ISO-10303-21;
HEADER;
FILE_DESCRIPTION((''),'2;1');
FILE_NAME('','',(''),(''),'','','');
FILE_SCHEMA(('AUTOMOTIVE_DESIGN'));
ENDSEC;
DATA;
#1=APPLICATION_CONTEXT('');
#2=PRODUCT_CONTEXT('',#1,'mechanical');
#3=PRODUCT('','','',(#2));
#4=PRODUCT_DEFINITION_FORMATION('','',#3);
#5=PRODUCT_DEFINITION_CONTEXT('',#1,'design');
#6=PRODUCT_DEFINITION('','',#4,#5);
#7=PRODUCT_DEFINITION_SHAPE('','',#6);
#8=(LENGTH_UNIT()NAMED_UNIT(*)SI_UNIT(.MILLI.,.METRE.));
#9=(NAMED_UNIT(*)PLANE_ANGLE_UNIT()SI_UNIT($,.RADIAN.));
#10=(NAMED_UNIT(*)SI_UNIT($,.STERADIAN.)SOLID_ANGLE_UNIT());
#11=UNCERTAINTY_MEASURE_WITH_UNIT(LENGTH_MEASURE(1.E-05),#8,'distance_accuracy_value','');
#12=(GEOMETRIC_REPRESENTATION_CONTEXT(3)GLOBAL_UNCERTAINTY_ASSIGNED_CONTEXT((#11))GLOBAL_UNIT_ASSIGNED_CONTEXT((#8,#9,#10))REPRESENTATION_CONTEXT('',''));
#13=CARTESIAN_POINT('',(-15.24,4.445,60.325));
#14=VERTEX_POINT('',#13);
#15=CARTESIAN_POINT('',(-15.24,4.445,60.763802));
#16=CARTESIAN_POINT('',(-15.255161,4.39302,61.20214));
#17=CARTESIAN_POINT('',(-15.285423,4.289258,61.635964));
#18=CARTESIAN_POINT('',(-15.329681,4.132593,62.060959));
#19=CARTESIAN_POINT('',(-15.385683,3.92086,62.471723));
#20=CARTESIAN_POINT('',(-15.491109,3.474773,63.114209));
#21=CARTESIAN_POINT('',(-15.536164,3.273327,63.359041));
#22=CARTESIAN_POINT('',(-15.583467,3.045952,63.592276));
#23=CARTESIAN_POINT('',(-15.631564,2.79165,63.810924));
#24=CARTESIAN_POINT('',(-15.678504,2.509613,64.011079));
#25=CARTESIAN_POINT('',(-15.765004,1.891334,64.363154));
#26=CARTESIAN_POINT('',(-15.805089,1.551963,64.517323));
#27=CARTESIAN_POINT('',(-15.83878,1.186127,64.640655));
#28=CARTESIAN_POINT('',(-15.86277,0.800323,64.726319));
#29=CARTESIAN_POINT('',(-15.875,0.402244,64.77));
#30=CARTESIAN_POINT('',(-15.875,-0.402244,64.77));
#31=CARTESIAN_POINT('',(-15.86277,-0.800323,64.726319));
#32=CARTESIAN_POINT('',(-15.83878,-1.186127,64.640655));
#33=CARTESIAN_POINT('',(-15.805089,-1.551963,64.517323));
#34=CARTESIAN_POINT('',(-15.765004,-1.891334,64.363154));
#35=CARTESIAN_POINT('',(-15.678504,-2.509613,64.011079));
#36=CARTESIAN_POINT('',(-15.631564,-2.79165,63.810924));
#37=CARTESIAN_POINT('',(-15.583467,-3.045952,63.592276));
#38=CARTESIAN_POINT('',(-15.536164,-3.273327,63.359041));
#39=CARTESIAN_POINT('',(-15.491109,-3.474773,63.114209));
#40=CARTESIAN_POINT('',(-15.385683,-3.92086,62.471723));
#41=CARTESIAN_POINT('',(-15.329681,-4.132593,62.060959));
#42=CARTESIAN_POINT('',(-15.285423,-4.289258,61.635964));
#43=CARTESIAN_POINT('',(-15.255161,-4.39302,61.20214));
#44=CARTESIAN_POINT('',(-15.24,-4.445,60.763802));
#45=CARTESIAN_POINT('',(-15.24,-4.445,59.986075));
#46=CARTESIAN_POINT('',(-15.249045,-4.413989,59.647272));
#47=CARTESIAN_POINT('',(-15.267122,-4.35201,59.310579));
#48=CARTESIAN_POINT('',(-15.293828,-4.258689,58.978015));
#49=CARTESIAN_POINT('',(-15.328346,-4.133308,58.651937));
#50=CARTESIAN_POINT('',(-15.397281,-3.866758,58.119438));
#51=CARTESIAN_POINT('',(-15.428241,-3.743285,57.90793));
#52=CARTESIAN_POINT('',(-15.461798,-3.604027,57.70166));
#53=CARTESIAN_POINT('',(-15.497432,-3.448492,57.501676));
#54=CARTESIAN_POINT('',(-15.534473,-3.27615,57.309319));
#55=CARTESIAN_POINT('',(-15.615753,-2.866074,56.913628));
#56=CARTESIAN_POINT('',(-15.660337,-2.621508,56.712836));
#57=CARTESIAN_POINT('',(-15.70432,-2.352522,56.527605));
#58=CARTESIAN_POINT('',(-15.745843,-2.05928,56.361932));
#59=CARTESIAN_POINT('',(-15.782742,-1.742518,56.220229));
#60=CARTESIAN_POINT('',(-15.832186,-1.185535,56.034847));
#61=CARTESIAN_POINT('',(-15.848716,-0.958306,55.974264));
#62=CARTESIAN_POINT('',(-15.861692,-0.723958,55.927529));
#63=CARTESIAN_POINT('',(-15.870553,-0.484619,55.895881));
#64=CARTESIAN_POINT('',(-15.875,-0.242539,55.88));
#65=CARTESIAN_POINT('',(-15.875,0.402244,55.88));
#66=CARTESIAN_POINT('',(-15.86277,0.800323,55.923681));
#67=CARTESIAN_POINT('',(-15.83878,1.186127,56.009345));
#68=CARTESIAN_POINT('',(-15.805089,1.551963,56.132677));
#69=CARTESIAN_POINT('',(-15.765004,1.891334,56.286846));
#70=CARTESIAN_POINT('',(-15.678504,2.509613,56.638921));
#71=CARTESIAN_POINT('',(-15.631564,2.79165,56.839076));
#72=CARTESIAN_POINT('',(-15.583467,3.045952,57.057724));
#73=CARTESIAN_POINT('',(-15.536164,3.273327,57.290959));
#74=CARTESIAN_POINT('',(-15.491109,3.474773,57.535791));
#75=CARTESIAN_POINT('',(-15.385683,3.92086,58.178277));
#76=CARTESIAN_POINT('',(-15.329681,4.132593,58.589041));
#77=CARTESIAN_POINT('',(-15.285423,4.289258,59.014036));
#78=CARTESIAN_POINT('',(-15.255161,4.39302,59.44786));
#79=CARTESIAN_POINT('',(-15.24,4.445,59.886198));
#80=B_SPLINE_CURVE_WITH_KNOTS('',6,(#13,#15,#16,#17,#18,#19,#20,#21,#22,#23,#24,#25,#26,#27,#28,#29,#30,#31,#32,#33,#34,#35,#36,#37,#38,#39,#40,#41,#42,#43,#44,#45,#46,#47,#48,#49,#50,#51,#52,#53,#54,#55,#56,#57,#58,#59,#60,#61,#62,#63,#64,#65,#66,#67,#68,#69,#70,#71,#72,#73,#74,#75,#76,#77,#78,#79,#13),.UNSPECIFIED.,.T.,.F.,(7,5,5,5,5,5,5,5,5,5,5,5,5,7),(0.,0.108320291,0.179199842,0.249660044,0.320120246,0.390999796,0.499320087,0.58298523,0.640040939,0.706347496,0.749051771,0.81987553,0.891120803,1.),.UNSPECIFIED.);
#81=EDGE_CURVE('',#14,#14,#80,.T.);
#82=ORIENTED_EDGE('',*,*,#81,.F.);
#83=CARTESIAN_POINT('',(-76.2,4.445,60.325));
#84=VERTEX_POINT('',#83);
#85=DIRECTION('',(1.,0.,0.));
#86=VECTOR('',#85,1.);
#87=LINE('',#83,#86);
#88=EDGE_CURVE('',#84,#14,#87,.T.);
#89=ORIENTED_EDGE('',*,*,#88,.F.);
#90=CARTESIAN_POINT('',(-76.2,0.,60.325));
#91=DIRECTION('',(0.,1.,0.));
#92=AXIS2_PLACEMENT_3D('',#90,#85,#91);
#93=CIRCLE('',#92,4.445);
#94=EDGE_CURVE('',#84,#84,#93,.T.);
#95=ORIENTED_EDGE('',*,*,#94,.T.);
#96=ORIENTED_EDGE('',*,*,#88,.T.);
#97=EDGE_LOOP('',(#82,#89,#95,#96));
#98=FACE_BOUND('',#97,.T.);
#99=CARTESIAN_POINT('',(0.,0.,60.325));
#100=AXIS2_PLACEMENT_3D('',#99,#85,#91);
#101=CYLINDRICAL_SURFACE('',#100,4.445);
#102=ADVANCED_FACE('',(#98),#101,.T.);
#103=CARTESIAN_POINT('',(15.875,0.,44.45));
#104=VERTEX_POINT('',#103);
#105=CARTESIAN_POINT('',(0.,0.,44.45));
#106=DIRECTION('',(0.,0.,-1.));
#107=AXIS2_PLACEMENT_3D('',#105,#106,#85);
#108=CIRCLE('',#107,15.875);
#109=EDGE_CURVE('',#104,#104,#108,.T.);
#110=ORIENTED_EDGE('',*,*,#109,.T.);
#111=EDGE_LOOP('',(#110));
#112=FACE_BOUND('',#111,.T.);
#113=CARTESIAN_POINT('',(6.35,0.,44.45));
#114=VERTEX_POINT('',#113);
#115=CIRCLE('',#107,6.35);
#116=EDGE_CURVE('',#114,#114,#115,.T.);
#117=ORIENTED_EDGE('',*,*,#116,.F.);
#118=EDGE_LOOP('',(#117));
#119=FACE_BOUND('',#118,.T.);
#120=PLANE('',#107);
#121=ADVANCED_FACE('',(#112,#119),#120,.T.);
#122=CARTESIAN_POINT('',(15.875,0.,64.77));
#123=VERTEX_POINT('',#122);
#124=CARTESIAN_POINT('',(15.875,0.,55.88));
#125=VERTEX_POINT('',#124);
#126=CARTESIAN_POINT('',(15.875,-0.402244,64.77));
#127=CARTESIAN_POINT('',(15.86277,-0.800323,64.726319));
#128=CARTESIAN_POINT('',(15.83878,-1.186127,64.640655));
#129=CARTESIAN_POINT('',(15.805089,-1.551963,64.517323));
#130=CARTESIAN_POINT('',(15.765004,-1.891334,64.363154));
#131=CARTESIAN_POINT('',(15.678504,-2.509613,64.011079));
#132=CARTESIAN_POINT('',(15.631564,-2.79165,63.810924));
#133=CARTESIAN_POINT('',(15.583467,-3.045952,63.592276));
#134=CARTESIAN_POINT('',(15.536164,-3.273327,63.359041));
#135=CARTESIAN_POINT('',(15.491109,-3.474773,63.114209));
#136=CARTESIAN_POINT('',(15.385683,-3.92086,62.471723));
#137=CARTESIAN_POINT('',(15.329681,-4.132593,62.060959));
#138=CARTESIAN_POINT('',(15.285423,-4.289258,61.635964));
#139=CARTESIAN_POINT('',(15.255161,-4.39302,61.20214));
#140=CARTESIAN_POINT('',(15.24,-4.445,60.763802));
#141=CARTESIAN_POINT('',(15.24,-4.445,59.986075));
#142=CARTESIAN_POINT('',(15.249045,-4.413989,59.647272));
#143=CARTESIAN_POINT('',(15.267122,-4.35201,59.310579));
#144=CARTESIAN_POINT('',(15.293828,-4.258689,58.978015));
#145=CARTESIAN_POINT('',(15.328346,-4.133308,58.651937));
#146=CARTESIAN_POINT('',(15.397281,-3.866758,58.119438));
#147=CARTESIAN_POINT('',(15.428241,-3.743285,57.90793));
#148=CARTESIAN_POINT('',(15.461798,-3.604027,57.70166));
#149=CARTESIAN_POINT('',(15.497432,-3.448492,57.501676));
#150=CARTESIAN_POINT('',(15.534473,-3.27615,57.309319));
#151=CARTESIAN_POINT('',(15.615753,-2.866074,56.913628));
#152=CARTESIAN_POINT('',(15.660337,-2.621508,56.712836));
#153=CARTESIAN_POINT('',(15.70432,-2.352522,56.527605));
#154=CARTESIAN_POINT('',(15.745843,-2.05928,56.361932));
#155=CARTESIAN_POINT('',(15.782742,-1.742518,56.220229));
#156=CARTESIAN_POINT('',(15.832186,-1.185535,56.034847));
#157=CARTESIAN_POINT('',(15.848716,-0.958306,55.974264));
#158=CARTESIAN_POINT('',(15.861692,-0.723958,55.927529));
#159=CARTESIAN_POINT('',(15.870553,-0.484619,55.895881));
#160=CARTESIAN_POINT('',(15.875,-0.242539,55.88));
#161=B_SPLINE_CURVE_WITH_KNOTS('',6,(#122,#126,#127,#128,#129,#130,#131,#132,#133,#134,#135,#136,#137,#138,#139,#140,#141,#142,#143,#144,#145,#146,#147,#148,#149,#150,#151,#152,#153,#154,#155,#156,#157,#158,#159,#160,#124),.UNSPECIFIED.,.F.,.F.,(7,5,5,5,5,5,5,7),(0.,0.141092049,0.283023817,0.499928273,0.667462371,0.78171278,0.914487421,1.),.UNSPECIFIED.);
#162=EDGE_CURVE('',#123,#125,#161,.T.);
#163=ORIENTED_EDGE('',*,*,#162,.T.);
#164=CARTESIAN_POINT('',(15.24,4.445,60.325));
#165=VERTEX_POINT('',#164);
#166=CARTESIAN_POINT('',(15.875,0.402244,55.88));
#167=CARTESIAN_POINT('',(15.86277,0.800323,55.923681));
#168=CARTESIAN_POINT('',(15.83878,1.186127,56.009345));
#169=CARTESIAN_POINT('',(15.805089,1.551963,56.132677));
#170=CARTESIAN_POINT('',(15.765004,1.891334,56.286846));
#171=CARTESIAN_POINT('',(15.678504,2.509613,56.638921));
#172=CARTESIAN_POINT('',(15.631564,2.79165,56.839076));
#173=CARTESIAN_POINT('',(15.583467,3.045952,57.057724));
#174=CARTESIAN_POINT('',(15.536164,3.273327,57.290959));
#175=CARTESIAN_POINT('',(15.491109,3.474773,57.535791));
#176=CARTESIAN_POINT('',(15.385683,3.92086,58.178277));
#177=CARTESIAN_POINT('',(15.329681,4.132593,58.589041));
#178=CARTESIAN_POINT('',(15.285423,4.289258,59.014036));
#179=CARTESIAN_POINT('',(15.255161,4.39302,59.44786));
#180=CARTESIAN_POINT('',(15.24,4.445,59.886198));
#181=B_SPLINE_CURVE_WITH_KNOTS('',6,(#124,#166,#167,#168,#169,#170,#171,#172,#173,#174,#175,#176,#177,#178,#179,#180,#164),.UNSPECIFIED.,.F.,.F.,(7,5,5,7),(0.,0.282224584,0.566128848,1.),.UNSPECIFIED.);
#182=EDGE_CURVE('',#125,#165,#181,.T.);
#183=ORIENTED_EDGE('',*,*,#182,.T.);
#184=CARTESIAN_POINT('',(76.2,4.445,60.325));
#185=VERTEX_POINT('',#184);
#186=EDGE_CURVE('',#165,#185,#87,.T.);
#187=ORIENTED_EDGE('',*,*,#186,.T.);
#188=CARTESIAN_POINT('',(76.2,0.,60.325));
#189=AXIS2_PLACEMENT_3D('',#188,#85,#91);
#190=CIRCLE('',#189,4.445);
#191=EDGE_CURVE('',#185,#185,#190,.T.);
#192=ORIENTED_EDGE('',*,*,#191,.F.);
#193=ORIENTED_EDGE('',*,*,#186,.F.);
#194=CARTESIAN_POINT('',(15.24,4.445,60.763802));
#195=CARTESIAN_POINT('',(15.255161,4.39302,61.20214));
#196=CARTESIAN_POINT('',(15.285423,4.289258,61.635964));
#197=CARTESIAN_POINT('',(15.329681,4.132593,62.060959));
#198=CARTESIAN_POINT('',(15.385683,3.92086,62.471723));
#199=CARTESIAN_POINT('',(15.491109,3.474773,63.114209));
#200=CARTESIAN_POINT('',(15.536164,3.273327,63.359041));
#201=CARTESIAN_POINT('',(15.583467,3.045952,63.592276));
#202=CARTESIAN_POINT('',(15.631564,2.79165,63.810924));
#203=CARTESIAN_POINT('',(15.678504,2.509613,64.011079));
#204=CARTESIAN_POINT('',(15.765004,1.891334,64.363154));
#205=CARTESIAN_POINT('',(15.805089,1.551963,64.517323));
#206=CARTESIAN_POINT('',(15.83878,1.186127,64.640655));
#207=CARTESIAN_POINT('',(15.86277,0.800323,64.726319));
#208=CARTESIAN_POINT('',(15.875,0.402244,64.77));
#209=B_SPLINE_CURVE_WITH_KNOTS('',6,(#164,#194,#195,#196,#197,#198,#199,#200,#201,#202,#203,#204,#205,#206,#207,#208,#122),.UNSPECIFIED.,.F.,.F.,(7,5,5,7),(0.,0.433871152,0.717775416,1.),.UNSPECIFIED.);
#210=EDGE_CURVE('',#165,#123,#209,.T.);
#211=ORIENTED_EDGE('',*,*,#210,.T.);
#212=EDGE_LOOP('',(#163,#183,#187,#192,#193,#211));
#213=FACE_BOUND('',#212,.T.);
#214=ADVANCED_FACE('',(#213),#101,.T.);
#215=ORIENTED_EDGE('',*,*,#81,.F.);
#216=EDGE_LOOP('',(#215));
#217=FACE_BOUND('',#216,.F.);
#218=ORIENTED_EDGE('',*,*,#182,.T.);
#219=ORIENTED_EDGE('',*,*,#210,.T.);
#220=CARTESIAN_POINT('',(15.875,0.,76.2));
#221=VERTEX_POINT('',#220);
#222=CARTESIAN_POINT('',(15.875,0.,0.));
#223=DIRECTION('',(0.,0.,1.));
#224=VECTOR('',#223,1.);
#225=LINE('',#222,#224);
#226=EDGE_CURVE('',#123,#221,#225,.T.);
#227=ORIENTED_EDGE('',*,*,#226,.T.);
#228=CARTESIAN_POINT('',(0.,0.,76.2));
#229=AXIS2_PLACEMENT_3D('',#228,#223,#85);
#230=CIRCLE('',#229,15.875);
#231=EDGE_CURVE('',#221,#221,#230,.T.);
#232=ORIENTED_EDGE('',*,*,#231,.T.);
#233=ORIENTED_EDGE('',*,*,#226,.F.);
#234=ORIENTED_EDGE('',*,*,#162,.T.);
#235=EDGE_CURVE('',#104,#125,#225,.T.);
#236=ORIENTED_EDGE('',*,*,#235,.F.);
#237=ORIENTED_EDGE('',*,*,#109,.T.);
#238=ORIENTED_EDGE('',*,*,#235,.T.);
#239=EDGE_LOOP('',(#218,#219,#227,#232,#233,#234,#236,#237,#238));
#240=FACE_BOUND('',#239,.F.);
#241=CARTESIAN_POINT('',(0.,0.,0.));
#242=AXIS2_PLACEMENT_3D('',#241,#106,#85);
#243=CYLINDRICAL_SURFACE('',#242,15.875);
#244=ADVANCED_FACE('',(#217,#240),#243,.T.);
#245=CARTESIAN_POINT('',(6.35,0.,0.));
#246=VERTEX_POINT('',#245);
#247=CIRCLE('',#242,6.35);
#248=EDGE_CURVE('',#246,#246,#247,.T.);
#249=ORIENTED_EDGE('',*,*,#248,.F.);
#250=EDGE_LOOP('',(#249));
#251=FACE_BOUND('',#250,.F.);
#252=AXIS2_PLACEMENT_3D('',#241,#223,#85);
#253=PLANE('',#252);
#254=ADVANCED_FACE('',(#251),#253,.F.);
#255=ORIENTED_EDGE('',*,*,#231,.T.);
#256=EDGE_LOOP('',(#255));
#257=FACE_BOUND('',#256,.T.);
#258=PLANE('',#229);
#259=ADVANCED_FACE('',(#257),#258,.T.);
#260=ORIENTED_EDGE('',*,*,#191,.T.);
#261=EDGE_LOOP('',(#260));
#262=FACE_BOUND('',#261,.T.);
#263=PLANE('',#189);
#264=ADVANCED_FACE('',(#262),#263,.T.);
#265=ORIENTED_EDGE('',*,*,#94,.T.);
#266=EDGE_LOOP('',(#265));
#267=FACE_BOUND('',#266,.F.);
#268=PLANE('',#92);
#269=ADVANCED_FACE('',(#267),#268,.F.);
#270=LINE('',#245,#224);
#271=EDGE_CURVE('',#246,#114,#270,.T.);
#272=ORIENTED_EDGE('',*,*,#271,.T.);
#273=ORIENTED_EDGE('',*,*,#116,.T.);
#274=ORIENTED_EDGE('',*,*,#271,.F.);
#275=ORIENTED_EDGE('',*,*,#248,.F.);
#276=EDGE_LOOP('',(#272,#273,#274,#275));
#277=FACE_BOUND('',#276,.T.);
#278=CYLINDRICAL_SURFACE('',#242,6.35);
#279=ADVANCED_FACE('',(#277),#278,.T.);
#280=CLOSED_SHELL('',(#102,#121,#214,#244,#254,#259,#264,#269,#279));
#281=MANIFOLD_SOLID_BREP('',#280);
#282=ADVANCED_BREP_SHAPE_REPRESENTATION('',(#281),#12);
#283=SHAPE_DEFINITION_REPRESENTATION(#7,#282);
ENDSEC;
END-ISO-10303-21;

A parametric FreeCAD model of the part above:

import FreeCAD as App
import Part
import Sketcher
Q = App.Units.Quantity

doc = App.newDocument("Part")
params = doc.addObject("Spreadsheet::Sheet", "Params")
for row, (alias, value) in enumerate([
    ("sketch1_diameter", "1.25 in"),
    ("pad1_length", "3 in"),
    ("sketch2_diameter", "0.5 in"),
    ("sketch2_diameter2", "1.25 in"),
    ("pocket1_length", "1.75 in"),
    ("sketch3_diameter", "0.35 in"),
    ("pad2_length", "6 in"),
], start=1):
    params.set(f"A{row}", alias)
    params.set(f"B{row}", "=" + value)
    params.setAlias(f"B{row}", alias)

body = doc.addObject("PartDesign::Body", "Body")

# Sketch on XY plane
sketch1 = doc.addObject("Sketcher::SketchObject", "Sketch")
body.addObject(sketch1)
sketch1.AttachmentSupport = (doc.XY_Plane, [""])
sketch1.MapMode = "FlatFace"
sketch1.addGeometry(Part.Circle(App.Vector(0, 0, 0), App.Vector(0, 0, 1), 16), False)
sketch1.addConstraint(Sketcher.Constraint("Coincident", 0, 3, -1, 1))
sketch1.addConstraint(Sketcher.Constraint("Diameter", 0, Q("1.25 in")))
sketch1.setExpression("Constraints[1]", "Params.sketch1_diameter")
pad1 = doc.addObject("PartDesign::Pad", "Pad")
body.addObject(pad1)
pad1.Profile = sketch1
pad1.setExpression("Length", "Params.pad1_length")

# Sketch on XY plane
sketch2 = doc.addObject("Sketcher::SketchObject", "Sketch001")
body.addObject(sketch2)
sketch2.AttachmentSupport = (doc.XY_Plane, [""])
sketch2.MapMode = "FlatFace"
sketch2.addGeometry(Part.Circle(App.Vector(0, 0, 0), App.Vector(0, 0, 1), 16), False)
sketch2.addGeometry(Part.Circle(App.Vector(0, 0, 0), App.Vector(0, 0, 1), 6), False)
sketch2.addConstraint(Sketcher.Constraint("Coincident", 0, 3, -1, 1))
sketch2.addConstraint(Sketcher.Constraint("Coincident", 1, 3, -1, 1))
sketch2.addConstraint(Sketcher.Constraint("Diameter", 1, Q("0.5 in")))
sketch2.addConstraint(Sketcher.Constraint("Diameter", 0, Q("1.25 in")))
sketch2.setExpression("Constraints[2]", "Params.sketch2_diameter")
sketch2.setExpression("Constraints[3]", "Params.sketch2_diameter2")
pocket1 = doc.addObject("PartDesign::Pocket", "Pocket")
body.addObject(pocket1)
pocket1.Profile = sketch2
pocket1.setExpression("Length", "Params.pocket1_length")
pocket1.Reversed = True

# Sketch on YZ plane
sketch3 = doc.addObject("Sketcher::SketchObject", "Sketch002")
body.addObject(sketch3)
sketch3.AttachmentSupport = (doc.YZ_Plane, [""])
sketch3.MapMode = "FlatFace"
sketch3.addGeometry(Part.Circle(App.Vector(0, 60.3, 0), App.Vector(0, 0, 1), 4.4), False)
sketch3.addConstraint(Sketcher.Constraint("PointOnObject", 0, 3, -2))
sketch3.addConstraint(Sketcher.Constraint("Diameter", 0, Q("0.35 in")))
sketch3.addConstraint(Sketcher.Constraint("DistanceY", -1, 1, 0, 3, Q("2.375 in")))
sketch3.setExpression("Constraints[1]", "Params.sketch3_diameter")
pad2 = doc.addObject("PartDesign::Pad", "Pad001")
body.addObject(pad2)
pad2.Profile = sketch3
pad2.setExpression("Length", "Params.pad2_length")
pad2.Midplane = True

doc.recompute()
